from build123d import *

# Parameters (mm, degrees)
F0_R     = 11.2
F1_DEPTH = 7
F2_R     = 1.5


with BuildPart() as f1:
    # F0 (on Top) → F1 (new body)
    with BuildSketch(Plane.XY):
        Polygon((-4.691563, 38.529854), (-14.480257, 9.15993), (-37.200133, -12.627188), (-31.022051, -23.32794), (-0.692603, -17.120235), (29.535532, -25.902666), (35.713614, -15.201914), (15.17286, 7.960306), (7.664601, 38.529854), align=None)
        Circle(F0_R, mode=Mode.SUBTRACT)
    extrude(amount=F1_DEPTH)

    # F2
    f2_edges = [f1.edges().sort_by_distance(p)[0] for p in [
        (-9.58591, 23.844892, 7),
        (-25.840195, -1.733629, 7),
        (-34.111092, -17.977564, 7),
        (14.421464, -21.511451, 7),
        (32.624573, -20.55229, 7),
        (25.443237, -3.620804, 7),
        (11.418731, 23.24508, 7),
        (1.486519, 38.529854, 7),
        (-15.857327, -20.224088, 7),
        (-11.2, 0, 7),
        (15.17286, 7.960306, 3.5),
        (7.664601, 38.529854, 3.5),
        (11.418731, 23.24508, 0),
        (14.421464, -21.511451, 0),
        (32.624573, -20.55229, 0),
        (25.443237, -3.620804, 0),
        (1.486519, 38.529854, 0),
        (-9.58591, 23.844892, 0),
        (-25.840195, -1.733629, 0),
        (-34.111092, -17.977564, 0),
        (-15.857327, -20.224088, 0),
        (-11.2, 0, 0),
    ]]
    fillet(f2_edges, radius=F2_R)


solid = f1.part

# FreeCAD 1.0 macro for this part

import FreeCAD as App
import Part
import Sketcher
from FreeCAD import Vector
Q = App.Units.Quantity


def edges_at(feature, points):
    """Names of the edges that pass closest to the given points."""
    edges = feature.Shape.Edges
    near = lambda p: min(range(len(edges)), key=lambda i: edges[i].distToShape(Part.Vertex(*p))[0])
    return sorted({f"Edge{near(p) + 1}" for p in points})

doc = App.newDocument("Part")
body = doc.addObject("PartDesign::Body", "Body")

# Sketch on XY plane
sketch1 = body.newObject("Sketcher::SketchObject", "Sketch")
sketch1.AttachmentSupport = (doc.getObject("XY_Plane"), [""])
sketch1.MapMode = "FlatFace"
sketch1.addGeometry([
    Part.LineSegment(Vector(-4.691563, 38.529854, 0), Vector(-14.480257, 9.15993, 0)),  # 0
    Part.LineSegment(Vector(-14.480257, 9.15993, 0), Vector(-37.200133, -12.627188, 0)),  # 1
    Part.LineSegment(Vector(-37.200133, -12.627188, 0), Vector(-31.022051, -23.32794, 0)),  # 2
    Part.LineSegment(Vector(-31.022051, -23.32794, 0), Vector(-0.692603, -17.120235, 0)),  # 3
    Part.LineSegment(Vector(-0.692603, -17.120235, 0), Vector(29.535532, -25.902666, 0)),  # 4
    Part.LineSegment(Vector(29.535532, -25.902666, 0), Vector(35.713614, -15.201914, 0)),  # 5
    Part.LineSegment(Vector(35.713614, -15.201914, 0), Vector(15.17286, 7.960306, 0)),  # 6
    Part.LineSegment(Vector(15.17286, 7.960306, 0), Vector(7.664601, 38.529854, 0)),  # 7
    Part.LineSegment(Vector(7.664601, 38.529854, 0), Vector(-4.691563, 38.529854, 0)),  # 8
    Part.Circle(Vector(0, 0, 0), Vector(0, 0, 1), 11.2),  # 9
], False)
sketch1.addConstraint([
    Sketcher.Constraint("Coincident", 0, 2, 1, 1),
    Sketcher.Constraint("Coincident", 1, 2, 2, 1),
    Sketcher.Constraint("Coincident", 2, 2, 3, 1),
    Sketcher.Constraint("Coincident", 3, 2, 4, 1),
    Sketcher.Constraint("Coincident", 4, 2, 5, 1),
    Sketcher.Constraint("Coincident", 5, 2, 6, 1),
    Sketcher.Constraint("Coincident", 6, 2, 7, 1),
    Sketcher.Constraint("Coincident", 7, 2, 8, 1),
    Sketcher.Constraint("Coincident", 8, 2, 0, 1),
    Sketcher.Constraint("Horizontal", 8),
    Sketcher.Constraint("Coincident", 9, 3, -1, 1),
    Sketcher.Constraint("Equal", 0, 3),
    Sketcher.Constraint("Equal", 1, 4),
    Sketcher.Constraint("Equal", 2, 5),
    Sketcher.Constraint("Equal", 3, 6),
    Sketcher.Constraint("Equal", 4, 7),
    Sketcher.Constraint("Diameter", 9, 22.4),
    Sketcher.Constraint("Angle", 2, Q("-60 deg")),
    Sketcher.Constraint("Angle", 5, Q("60 deg")),
    Sketcher.Constraint("DistanceX", -1, 1, 7, 2, 7.664601),
    Sketcher.Constraint("DistanceX", 8, 2, 8, 1, 12.356164),
    Sketcher.Constraint("DistanceY", -1, 1, 0, 2, 9.15993),
    Sketcher.Constraint("DistanceX", 2, 2, -1, 1, 31.022051),
    Sketcher.Constraint("DistanceY", 2, 2, -1, 1, 23.32794),
    Sketcher.Constraint("DistanceX", -1, 1, 4, 2, 29.535532),
    Sketcher.Constraint("DistanceX", -1, 1, 6, 2, 15.17286),
    Sketcher.Constraint("DistanceX", 2, 2, 3, 2, 30.329448),
    Sketcher.Constraint("DistanceX", 1, 2, 3, 2, 36.50753),
    Sketcher.Constraint("DistanceY", 4, 2, 3, 2, 8.782431),
])
pad1 = body.newObject("PartDesign::Pad", "Pad")
pad1.Profile = sketch1
pad1.Length = 7
doc.recompute()

fillet = body.newObject("PartDesign::Fillet", "Fillet")
fillet.Base = (pad1, edges_at(pad1, [
    (-9.586, 23.845, 7),
    (-25.84, -1.734, 7),
    (-34.111, -17.978, 7),
    (14.421, -21.511, 7),
    (32.625, -20.552, 7),
    (25.443, -3.621, 7),
    (11.419, 23.245, 7),
    (1.487, 38.53, 7),
    (-15.857, -20.224, 7),
    (-11.2, 0, 7),
    (15.173, 7.96, 3.5),
    (7.665, 38.53, 3.5),
    (11.419, 23.245, 0),
    (14.421, -21.511, 0),
    (32.625, -20.552, 0),
    (25.443, -3.621, 0),
    (1.487, 38.53, 0),
    (-9.586, 23.845, 0),
    (-25.84, -1.734, 0),
    (-34.111, -17.978, 0),
    (-15.857, -20.224, 0),
    (-11.2, 0, 0),
]))
fillet.Radius = 1.5

doc.recompute()
